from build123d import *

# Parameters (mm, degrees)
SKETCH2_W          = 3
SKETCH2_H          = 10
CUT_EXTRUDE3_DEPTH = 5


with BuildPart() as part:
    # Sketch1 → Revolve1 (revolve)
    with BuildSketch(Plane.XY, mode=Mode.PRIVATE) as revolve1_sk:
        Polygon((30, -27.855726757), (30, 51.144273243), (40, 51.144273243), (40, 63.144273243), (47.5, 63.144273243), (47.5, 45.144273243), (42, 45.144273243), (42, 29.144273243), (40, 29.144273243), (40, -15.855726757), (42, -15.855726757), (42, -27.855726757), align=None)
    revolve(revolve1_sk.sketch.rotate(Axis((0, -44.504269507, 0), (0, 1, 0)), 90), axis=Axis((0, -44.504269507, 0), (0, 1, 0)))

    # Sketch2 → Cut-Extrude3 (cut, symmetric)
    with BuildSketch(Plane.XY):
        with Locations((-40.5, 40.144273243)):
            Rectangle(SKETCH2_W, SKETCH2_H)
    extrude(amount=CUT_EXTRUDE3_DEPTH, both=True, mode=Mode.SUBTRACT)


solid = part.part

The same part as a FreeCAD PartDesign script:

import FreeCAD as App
import Part
import Sketcher
from FreeCAD import Vector

doc = App.newDocument("Part")
params = doc.addObject("Spreadsheet::Sheet", "Params")
for row, (alias, value) in enumerate([
    ("sketch1_width", "12 mm"),
    ("sketch1_width2", "2 mm"),
    ("sketch1_height", "79 mm"),
    ("sketch1_height2", "45 mm"),
    ("sketch1_height3", "16 mm"),
    ("revolution_angle", "360 deg"),
    ("sketch2_width", "3 mm"),
    ("sketch2_height", "10 mm"),
    ("pocket1_length", "10 mm"),
], start=1):
    params.set(f"A{row}", alias)
    params.set(f"B{row}", "=" + value)
    params.setAlias(f"B{row}", alias)

body = doc.addObject("PartDesign::Body", "Body")

# Sketch on XY plane
sketch1 = doc.addObject("Sketcher::SketchObject", "Sketch")
body.addObject(sketch1)
sketch1.AttachmentSupport = (doc.XY_Plane, [""])
sketch1.MapMode = "FlatFace"
sketch1.addGeometry([
    Part.LineSegment(Vector(30, 51.144273, 0), Vector(30, -27.855727, 0)),  # 0
    Part.LineSegment(Vector(30, -27.855727, 0), Vector(42, -27.855727, 0)),  # 1
    Part.LineSegment(Vector(42, -27.855727, 0), Vector(42, -15.855727, 0)),  # 2
    Part.LineSegment(Vector(42, -15.855727, 0), Vector(40, -15.855727, 0)),  # 3
    Part.LineSegment(Vector(40, -15.855727, 0), Vector(40, 29.144273, 0)),  # 4
    Part.LineSegment(Vector(40, 29.144273, 0), Vector(42, 29.144273, 0)),  # 5
    Part.LineSegment(Vector(42, 29.144273, 0), Vector(42, 45.144273, 0)),  # 6
    Part.LineSegment(Vector(42, 45.144273, 0), Vector(47.5, 45.144273, 0)),  # 7
    Part.LineSegment(Vector(47.5, 45.144273, 0), Vector(47.5, 63.144273, 0)),  # 8
    Part.LineSegment(Vector(47.5, 63.144273, 0), Vector(40, 63.144273, 0)),  # 9
    Part.LineSegment(Vector(40, 63.144273, 0), Vector(40, 51.144273, 0)),  # 10
    Part.LineSegment(Vector(40, 51.144273, 0), Vector(30, 51.144273, 0)),  # 11
], False)
sketch1.addConstraint([
    Sketcher.Constraint("Coincident", 0, 2, 1, 1),
    Sketcher.Constraint("Coincident", 1, 2, 2, 1),
    Sketcher.Constraint("Coincident", 2, 2, 3, 1),
    Sketcher.Constraint("Coincident", 3, 2, 4, 1),
    Sketcher.Constraint("Coincident", 4, 2, 5, 1),
    Sketcher.Constraint("Coincident", 5, 2, 6, 1),
    Sketcher.Constraint("Coincident", 6, 2, 7, 1),
    Sketcher.Constraint("Coincident", 7, 2, 8, 1),
    Sketcher.Constraint("Coincident", 8, 2, 9, 1),
    Sketcher.Constraint("Coincident", 9, 2, 10, 1),
    Sketcher.Constraint("Coincident", 10, 2, 11, 1),
    Sketcher.Constraint("Coincident", 11, 2, 0, 1),
    Sketcher.Constraint("Vertical", 0),
    Sketcher.Constraint("Horizontal", 1),
    Sketcher.Constraint("Vertical", 2),
    Sketcher.Constraint("Horizontal", 3),
    Sketcher.Constraint("Vertical", 4),
    Sketcher.Constraint("Horizontal", 5),
    Sketcher.Constraint("Vertical", 6),
    Sketcher.Constraint("Horizontal", 7),
    Sketcher.Constraint("Vertical", 8),
    Sketcher.Constraint("Horizontal", 9),
    Sketcher.Constraint("Vertical", 10),
    Sketcher.Constraint("Horizontal", 11),
    Sketcher.Constraint("Vertical", 2, 2, 5, 2),
    Sketcher.Constraint("Vertical", 4, 2, 9, 2),
    Sketcher.Constraint("Equal", 1, 2),
    Sketcher.Constraint("Equal", 2, 10),
    Sketcher.Constraint("DistanceX", 1, 1, 1, 2, 12.0),
    Sketcher.Constraint("DistanceX", 3, 2, 3, 1, 2.0),
    Sketcher.Constraint("DistanceY", 0, 2, 0, 1, 79.0),
    Sketcher.Constraint("DistanceY", 4, 1, 4, 2, 45.0),
    Sketcher.Constraint("DistanceY", 6, 1, 6, 2, 16.0),
    Sketcher.Constraint("DistanceX", 7, 1, 7, 2, 5.5),
    Sketcher.Constraint("DistanceX", -1, 1, 0, 2, 30.0),
    Sketcher.Constraint("DistanceY", 0, 2, -1, 1, 27.855727),
])
sketch1.setExpression("Constraints[28]", "Params.sketch1_width")
sketch1.setExpression("Constraints[29]", "Params.sketch1_width2")
sketch1.setExpression("Constraints[30]", "Params.sketch1_height")
sketch1.setExpression("Constraints[31]", "Params.sketch1_height2")
sketch1.setExpression("Constraints[32]", "Params.sketch1_height3")
revolution = doc.addObject("PartDesign::Revolution", "Revolution")
body.addObject(revolution)
revolution.Profile = sketch1
revolution.ReferenceAxis = (sketch1, ["V_Axis"])
revolution.setExpression("Angle", "Params.revolution_angle")

# Sketch on XY plane
sketch2 = doc.addObject("Sketcher::SketchObject", "Sketch001")
body.addObject(sketch2)
sketch2.AttachmentSupport = (doc.XY_Plane, [""])
sketch2.MapMode = "FlatFace"
sketch2.addGeometry([
    Part.LineSegment(Vector(-42, 45.144273, 0), Vector(-42, 35.144273, 0)),
    Part.LineSegment(Vector(-42, 35.144273, 0), Vector(-39, 35.144273, 0)),
    Part.LineSegment(Vector(-39, 35.144273, 0), Vector(-39, 45.144273, 0)),
    Part.LineSegment(Vector(-39, 45.144273, 0), Vector(-42, 45.144273, 0)),
], False)
sketch2.addConstraint([
    Sketcher.Constraint("Coincident", 0, 2, 1, 1),
    Sketcher.Constraint("Coincident", 1, 2, 2, 1),
    Sketcher.Constraint("Coincident", 2, 2, 3, 1),
    Sketcher.Constraint("Coincident", 3, 2, 0, 1),
    Sketcher.Constraint("Vertical", 0),
    Sketcher.Constraint("Horizontal", 1),
    Sketcher.Constraint("Vertical", 2),
    Sketcher.Constraint("Horizontal", 3),
    Sketcher.Constraint("DistanceX", 1, 1, 1, 2, 3.0),
    Sketcher.Constraint("DistanceY", 0, 2, 0, 1, 10.0),
    Sketcher.Constraint("DistanceX", 0, 2, -1, 1, 42.0),
    Sketcher.Constraint("DistanceY", -1, 1, 0, 2, 35.144273),
])
sketch2.setExpression("Constraints[8]", "Params.sketch2_width")
sketch2.setExpression("Constraints[9]", "Params.sketch2_height")
pocket1 = doc.addObject("PartDesign::Pocket", "Pocket")
body.addObject(pocket1)
pocket1.Profile = sketch2
pocket1.setExpression("Length", "Params.pocket1_length")
pocket1.Midplane = True

doc.recompute()
